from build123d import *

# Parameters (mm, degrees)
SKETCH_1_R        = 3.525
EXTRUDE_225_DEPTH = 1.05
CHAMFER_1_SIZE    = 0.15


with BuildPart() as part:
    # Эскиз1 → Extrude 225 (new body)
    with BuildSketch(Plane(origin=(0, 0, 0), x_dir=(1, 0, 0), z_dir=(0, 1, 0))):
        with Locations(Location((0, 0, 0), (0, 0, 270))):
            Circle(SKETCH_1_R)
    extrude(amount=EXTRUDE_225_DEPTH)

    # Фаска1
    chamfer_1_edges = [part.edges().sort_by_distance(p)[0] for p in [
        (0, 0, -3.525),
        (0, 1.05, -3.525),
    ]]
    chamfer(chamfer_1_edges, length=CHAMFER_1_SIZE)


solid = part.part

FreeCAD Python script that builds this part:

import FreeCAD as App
import Part
import Sketcher


def edges_at(feature, points):
    """Names of the edges that pass closest to the given points."""
    edges = feature.Shape.Edges
    near = lambda p: min(range(len(edges)), key=lambda i: edges[i].distToShape(Part.Vertex(*p))[0])
    return sorted({f"Edge{near(p) + 1}" for p in points})

doc = App.newDocument("Part")
body = doc.addObject("PartDesign::Body", "Body")

sketch1 = body.newObject("Sketcher::SketchObject", "Sketch")
sketch1.AttachmentSupport = (doc.getObject("XZ_Plane"), [""])
sketch1.MapMode = "FlatFace"
sketch1.addGeometry(Part.Circle(App.Vector(0, 0, 0), App.Vector(0, 0, 1), 3.525), False)
sketch1.addConstraint([
    Sketcher.Constraint("Coincident", 0, 3, -1, 1),
    Sketcher.Constraint("Diameter", 0, 7.05),
])
pad1 = body.newObject("PartDesign::Pad", "Pad")
pad1.Profile = sketch1
pad1.Length = 1.05
pad1.Reversed = True
doc.recompute()

chamfer = body.newObject("PartDesign::Chamfer", "Chamfer")
chamfer.Base = (pad1, edges_at(pad1, [(0, 0, -3.525), (0, 1.05, -3.525)]))
chamfer.Size = 0.15

doc.recompute()
